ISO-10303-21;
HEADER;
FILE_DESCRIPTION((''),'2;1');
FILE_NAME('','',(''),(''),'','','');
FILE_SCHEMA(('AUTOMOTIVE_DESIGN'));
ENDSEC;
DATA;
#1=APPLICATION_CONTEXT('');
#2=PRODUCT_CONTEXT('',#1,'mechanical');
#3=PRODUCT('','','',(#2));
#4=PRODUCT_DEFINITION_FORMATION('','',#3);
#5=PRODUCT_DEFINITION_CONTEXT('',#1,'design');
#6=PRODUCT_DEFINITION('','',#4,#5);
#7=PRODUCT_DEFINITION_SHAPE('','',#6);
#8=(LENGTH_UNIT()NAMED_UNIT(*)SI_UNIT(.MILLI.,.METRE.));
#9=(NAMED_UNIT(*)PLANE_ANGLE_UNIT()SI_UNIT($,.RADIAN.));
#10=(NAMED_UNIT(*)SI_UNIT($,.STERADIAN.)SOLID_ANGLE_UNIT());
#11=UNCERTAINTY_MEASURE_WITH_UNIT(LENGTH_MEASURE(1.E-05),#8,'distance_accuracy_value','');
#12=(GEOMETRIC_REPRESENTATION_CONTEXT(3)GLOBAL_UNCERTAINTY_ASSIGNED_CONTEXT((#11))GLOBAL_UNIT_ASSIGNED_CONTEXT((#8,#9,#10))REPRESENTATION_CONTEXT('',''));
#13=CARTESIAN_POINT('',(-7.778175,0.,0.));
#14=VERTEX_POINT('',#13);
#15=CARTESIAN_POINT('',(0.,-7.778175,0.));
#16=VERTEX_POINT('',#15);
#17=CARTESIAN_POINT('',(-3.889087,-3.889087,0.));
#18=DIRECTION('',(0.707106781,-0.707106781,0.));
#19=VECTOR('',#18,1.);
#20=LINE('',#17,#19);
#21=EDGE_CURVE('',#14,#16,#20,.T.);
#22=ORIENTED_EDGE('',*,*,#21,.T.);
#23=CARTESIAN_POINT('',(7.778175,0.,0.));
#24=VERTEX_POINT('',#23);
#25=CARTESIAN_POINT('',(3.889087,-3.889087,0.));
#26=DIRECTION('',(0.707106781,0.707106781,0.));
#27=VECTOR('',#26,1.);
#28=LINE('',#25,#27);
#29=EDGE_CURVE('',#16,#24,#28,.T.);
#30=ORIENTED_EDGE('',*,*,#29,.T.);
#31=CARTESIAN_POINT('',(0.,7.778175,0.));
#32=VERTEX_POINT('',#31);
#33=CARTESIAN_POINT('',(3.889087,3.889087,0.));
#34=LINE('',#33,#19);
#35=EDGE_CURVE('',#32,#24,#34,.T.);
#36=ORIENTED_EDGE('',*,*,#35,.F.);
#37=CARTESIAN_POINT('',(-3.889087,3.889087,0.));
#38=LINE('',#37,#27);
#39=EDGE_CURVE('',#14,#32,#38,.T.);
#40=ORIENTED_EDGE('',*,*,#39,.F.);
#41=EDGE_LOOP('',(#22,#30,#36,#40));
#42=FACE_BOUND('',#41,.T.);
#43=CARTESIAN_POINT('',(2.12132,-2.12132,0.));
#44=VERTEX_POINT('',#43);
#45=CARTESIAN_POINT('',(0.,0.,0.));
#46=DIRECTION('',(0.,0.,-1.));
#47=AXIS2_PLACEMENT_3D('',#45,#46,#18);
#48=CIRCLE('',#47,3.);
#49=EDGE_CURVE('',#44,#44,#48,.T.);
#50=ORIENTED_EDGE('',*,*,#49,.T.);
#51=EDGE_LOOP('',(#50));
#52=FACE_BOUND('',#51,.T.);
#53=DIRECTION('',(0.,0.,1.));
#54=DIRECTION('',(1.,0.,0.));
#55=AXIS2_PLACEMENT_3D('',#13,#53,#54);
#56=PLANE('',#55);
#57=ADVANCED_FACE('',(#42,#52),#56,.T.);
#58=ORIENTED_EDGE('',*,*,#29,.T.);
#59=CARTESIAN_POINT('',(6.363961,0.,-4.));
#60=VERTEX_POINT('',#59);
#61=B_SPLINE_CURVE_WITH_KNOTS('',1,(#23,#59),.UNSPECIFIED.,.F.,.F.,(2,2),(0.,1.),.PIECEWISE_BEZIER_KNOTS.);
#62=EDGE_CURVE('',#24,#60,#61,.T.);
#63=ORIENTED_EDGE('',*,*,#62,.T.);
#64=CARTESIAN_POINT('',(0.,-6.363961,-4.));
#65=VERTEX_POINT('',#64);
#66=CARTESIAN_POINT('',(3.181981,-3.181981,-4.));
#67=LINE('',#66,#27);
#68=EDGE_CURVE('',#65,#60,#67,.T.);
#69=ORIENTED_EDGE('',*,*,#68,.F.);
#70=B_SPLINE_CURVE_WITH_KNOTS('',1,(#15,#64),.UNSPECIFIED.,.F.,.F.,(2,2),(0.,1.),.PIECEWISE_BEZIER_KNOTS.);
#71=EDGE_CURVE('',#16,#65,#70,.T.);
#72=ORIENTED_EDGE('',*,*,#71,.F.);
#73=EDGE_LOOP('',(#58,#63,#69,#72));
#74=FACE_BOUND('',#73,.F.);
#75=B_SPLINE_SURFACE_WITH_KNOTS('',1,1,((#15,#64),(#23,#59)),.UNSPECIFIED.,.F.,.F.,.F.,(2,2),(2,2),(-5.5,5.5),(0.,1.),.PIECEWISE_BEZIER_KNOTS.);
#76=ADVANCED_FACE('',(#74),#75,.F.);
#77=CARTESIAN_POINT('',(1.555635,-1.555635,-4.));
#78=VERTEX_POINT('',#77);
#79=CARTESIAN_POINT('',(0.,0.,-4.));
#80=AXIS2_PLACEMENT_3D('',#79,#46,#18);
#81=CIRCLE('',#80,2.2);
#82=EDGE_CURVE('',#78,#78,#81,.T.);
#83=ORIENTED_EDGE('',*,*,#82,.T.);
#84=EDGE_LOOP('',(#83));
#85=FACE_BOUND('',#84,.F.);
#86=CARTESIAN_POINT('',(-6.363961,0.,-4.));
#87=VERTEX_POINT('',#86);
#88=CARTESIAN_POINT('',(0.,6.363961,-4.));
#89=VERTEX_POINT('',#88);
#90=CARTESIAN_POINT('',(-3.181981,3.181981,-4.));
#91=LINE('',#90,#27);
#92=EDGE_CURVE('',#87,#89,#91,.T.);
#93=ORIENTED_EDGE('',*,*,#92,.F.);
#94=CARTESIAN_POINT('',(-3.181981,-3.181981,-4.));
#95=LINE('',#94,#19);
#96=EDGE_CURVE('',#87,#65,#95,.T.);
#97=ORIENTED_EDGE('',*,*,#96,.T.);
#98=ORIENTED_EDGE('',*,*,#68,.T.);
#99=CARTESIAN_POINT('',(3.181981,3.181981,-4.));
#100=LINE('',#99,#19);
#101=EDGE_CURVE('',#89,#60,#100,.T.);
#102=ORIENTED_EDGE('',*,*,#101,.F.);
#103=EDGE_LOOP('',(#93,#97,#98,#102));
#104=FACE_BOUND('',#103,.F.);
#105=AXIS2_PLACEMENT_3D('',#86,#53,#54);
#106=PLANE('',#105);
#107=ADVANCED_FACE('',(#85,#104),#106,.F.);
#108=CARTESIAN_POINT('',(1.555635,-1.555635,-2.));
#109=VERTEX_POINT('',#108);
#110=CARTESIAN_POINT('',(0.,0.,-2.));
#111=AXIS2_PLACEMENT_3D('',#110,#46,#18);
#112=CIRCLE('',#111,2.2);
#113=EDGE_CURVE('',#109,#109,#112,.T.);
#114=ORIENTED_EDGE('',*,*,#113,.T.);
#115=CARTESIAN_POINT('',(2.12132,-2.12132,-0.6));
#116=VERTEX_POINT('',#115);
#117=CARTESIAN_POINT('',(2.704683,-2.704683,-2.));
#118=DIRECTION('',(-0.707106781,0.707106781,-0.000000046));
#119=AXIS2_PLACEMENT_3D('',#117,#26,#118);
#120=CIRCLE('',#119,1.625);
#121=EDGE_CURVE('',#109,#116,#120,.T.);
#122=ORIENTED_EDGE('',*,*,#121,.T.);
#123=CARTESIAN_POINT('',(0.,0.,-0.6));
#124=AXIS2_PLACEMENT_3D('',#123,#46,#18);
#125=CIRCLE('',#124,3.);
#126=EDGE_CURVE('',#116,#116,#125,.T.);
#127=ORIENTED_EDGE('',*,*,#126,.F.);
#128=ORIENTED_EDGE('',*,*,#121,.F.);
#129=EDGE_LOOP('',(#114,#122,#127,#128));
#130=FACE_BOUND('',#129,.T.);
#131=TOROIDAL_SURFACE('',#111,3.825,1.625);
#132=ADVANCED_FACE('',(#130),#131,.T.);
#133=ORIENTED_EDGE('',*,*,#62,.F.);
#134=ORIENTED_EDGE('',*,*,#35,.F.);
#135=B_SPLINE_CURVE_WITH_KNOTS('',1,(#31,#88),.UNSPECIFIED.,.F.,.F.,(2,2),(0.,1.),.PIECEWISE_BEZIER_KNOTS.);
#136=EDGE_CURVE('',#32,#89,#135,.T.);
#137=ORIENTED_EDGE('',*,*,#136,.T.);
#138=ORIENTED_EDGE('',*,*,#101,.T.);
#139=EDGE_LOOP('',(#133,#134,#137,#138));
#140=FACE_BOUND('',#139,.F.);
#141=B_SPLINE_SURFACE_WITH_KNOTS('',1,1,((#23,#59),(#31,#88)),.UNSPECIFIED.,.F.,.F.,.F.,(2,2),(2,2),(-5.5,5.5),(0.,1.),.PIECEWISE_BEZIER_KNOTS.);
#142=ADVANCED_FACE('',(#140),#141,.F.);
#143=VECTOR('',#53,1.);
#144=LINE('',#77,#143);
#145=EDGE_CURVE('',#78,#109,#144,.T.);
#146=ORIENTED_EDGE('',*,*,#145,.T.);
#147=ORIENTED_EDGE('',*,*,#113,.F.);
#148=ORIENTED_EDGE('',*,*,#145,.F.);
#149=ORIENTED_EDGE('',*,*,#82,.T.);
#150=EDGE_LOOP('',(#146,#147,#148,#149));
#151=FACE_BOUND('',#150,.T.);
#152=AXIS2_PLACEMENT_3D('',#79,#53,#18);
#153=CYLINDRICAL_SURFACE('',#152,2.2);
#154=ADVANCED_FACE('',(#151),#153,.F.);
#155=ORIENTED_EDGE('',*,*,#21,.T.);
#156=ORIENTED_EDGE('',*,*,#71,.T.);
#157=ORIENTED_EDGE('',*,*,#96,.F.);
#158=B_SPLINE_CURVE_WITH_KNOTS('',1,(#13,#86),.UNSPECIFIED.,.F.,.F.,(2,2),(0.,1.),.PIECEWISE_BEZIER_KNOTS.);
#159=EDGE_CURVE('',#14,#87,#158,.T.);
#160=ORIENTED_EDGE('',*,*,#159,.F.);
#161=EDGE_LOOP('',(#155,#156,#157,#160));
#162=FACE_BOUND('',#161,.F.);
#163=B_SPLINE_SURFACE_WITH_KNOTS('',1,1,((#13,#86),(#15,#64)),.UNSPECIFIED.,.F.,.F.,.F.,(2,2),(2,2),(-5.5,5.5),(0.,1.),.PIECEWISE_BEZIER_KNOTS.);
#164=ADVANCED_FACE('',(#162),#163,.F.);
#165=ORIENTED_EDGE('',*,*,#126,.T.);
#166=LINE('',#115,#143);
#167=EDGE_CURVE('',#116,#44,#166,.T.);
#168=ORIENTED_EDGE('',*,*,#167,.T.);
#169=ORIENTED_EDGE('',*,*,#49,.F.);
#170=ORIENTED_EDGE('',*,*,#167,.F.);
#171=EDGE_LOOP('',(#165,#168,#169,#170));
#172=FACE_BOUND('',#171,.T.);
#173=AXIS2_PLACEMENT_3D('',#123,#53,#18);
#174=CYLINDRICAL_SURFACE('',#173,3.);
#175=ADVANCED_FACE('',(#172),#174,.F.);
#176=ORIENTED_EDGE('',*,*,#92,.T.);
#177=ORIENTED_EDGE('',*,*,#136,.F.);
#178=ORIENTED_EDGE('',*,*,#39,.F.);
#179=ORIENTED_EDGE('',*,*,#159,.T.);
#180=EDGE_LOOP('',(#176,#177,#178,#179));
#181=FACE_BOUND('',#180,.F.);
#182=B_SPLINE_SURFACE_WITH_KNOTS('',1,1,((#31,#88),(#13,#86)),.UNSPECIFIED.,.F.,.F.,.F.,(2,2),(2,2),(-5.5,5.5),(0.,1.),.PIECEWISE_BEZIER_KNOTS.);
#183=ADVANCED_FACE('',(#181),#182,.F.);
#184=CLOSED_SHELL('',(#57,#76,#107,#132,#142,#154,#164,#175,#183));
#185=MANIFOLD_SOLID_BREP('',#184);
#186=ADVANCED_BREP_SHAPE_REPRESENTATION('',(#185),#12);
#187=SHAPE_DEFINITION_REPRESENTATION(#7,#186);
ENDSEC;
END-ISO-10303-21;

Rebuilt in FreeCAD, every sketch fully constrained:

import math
import FreeCAD as App
import Part
import Sketcher
Q = App.Units.Quantity


def add_polygon(sketch, points):
    """Adds a closed chain of lines whose ends are joined by coincident constraints."""
    first, n = sketch.GeometryCount, len(points)
    for a, b in zip(points, points[1:] + points[:1]):
        sketch.addGeometry(Part.LineSegment(App.Vector(*a, 0), App.Vector(*b, 0)), False)
    for i in range(n):
        sketch.addConstraint(Sketcher.Constraint("Coincident", first + i, 2, first + (i + 1) % n, 1))

doc = App.newDocument("Part")
params = doc.addObject("Spreadsheet::Sheet", "Params")
for row, (alias, value) in enumerate([
    ("sketch1_width", "11 mm"),
    ("sketch2_width", "9 mm"),
    ("sketch3_width", "3 mm"),
    ("sketch3_height", "2 mm"),
    ("sketch3_height2", "4 mm"),
    ("sketch3_width2", "2.2 mm"),
    ("sketch3_height3", "0.6 mm"),
    ("groove_angle", "360 deg"),
], start=1):
    params.set(f"A{row}", alias)
    params.set(f"B{row}", "=" + value)
    params.setAlias(f"B{row}", alias)

body = doc.addObject("PartDesign::Body", "Body")

# Sketch on XY plane
sketch1 = doc.addObject("Sketcher::SketchObject", "Sketch")
body.addObject(sketch1)
sketch1.AttachmentSupport = (doc.XY_Plane, [""])
sketch1.MapMode = "FlatFace"
add_polygon(sketch1, [(-6, 6), (-6, -6), (6, -6), (6, 6)])  # lines 0-3
sketch1.addConstraint([
    Sketcher.Constraint("Vertical", 0),
    Sketcher.Constraint("Horizontal", 1),
    Sketcher.Constraint("Vertical", 2),
    Sketcher.Constraint("Horizontal", 3),
    Sketcher.Constraint("Symmetric", 0, 2, 2, 2, -1, 1),
    Sketcher.Constraint("Equal", 3, 0),
    Sketcher.Constraint("DistanceX", 1, 1, 1, 2, Q("11 mm")),
])
sketch1.setExpression("Constraints[10]", "Params.sketch1_width")

# Sketch on XY plane
sketch2 = doc.addObject("Sketcher::SketchObject", "Sketch001")
body.addObject(sketch2)
sketch2.AttachmentSupport = (doc.XY_Plane, [""])
sketch2.MapMode = "FlatFace"
sketch2.AttachmentOffset = App.Placement(App.Vector(0, 0, -4), App.Rotation())
add_polygon(sketch2, [(-4, 4), (-4, -4), (4, -4), (4, 4)])  # lines 0-3
sketch2.addConstraint([
    Sketcher.Constraint("Vertical", 0),
    Sketcher.Constraint("Horizontal", 1),
    Sketcher.Constraint("Vertical", 2),
    Sketcher.Constraint("Horizontal", 3),
    Sketcher.Constraint("Symmetric", 0, 2, 2, 2, -1, 1),
    Sketcher.Constraint("Equal", 3, 0),
    Sketcher.Constraint("DistanceX", 1, 1, 1, 2, Q("9 mm")),
])
sketch2.setExpression("Constraints[10]", "Params.sketch2_width")

additiveloft = doc.addObject("PartDesign::AdditiveLoft", "AdditiveLoft")
body.addObject(additiveloft)
additiveloft.Profile = sketch1
additiveloft.Sections = [sketch2]

# Sketch on XZ plane
sketch3 = doc.addObject("Sketcher::SketchObject", "Sketch002")
body.addObject(sketch3)
sketch3.AttachmentSupport = (doc.XZ_Plane, [""])
sketch3.MapMode = "FlatFace"
sketch3.addGeometry([
    Part.LineSegment(App.Vector(0, -4, 0), App.Vector(2.2, -4, 0)),  # 0
    Part.LineSegment(App.Vector(2.2, -4, 0), App.Vector(2.2, -2, 0)),  # 1
    Part.ArcOfCircle(Part.Circle(App.Vector(3.8, -2, 0), App.Vector(0, 0, 1), 1.6), math.radians(121), math.radians(180)),  # 2
    Part.LineSegment(App.Vector(3, -0.6, 0), App.Vector(3, 0, 0)),  # 3
    Part.LineSegment(App.Vector(3, 0, 0), App.Vector(0, 0, 0)),  # 4
    Part.LineSegment(App.Vector(0, 0, 0), App.Vector(0, -4, 0)),  # 5
], False)
sketch3.addConstraint([
    Sketcher.Constraint("Coincident", 0, 2, 1, 1),
    Sketcher.Constraint("Tangent", 1, 2, 2, 2),
    Sketcher.Constraint("Coincident", 2, 1, 3, 1),
    Sketcher.Constraint("Coincident", 3, 2, 4, 1),
    Sketcher.Constraint("Coincident", 4, 2, 5, 1),
    Sketcher.Constraint("Coincident", 5, 2, 0, 1),
    Sketcher.Constraint("Horizontal", 0),
    Sketcher.Constraint("Vertical", 1),
    Sketcher.Constraint("Vertical", 3),
    Sketcher.Constraint("Horizontal", 4),
    Sketcher.Constraint("Vertical", 5),
    Sketcher.Constraint("Coincident", 4, 2, -1, 1),
    Sketcher.Constraint("DistanceX", 4, 2, 4, 1, Q("3 mm")),
    Sketcher.Constraint("DistanceY", 1, 1, 1, 2, Q("2 mm")),
    Sketcher.Constraint("DistanceY", 5, 2, 5, 1, Q("4 mm")),
    Sketcher.Constraint("DistanceX", 0, 1, 0, 2, Q("2.2 mm")),
    Sketcher.Constraint("DistanceY", 3, 1, 3, 2, Q("0.6 mm")),
])
sketch3.setExpression("Constraints[12]", "Params.sketch3_width")
sketch3.setExpression("Constraints[13]", "Params.sketch3_height")
sketch3.setExpression("Constraints[14]", "Params.sketch3_height2")
sketch3.setExpression("Constraints[15]", "Params.sketch3_width2")
sketch3.setExpression("Constraints[16]", "Params.sketch3_height3")
groove = doc.addObject("PartDesign::Groove", "Groove")
body.addObject(groove)
groove.Profile = sketch3
groove.ReferenceAxis = (sketch3, ["V_Axis"])
groove.setExpression("Angle", "Params.groove_angle")
body2 = doc.addObject("PartDesign::Body", "Body001")
doc.recompute()

body.Placement = App.Placement(App.Vector(0, 0, 0), App.Rotation(App.Vector(0, 0, -1), 45))
boolean = doc.addObject("PartDesign::Boolean", "Boolean")
body2.addObject(boolean)
boolean.Type = "Fuse"
boolean.addObjects([body])

doc.recompute()
